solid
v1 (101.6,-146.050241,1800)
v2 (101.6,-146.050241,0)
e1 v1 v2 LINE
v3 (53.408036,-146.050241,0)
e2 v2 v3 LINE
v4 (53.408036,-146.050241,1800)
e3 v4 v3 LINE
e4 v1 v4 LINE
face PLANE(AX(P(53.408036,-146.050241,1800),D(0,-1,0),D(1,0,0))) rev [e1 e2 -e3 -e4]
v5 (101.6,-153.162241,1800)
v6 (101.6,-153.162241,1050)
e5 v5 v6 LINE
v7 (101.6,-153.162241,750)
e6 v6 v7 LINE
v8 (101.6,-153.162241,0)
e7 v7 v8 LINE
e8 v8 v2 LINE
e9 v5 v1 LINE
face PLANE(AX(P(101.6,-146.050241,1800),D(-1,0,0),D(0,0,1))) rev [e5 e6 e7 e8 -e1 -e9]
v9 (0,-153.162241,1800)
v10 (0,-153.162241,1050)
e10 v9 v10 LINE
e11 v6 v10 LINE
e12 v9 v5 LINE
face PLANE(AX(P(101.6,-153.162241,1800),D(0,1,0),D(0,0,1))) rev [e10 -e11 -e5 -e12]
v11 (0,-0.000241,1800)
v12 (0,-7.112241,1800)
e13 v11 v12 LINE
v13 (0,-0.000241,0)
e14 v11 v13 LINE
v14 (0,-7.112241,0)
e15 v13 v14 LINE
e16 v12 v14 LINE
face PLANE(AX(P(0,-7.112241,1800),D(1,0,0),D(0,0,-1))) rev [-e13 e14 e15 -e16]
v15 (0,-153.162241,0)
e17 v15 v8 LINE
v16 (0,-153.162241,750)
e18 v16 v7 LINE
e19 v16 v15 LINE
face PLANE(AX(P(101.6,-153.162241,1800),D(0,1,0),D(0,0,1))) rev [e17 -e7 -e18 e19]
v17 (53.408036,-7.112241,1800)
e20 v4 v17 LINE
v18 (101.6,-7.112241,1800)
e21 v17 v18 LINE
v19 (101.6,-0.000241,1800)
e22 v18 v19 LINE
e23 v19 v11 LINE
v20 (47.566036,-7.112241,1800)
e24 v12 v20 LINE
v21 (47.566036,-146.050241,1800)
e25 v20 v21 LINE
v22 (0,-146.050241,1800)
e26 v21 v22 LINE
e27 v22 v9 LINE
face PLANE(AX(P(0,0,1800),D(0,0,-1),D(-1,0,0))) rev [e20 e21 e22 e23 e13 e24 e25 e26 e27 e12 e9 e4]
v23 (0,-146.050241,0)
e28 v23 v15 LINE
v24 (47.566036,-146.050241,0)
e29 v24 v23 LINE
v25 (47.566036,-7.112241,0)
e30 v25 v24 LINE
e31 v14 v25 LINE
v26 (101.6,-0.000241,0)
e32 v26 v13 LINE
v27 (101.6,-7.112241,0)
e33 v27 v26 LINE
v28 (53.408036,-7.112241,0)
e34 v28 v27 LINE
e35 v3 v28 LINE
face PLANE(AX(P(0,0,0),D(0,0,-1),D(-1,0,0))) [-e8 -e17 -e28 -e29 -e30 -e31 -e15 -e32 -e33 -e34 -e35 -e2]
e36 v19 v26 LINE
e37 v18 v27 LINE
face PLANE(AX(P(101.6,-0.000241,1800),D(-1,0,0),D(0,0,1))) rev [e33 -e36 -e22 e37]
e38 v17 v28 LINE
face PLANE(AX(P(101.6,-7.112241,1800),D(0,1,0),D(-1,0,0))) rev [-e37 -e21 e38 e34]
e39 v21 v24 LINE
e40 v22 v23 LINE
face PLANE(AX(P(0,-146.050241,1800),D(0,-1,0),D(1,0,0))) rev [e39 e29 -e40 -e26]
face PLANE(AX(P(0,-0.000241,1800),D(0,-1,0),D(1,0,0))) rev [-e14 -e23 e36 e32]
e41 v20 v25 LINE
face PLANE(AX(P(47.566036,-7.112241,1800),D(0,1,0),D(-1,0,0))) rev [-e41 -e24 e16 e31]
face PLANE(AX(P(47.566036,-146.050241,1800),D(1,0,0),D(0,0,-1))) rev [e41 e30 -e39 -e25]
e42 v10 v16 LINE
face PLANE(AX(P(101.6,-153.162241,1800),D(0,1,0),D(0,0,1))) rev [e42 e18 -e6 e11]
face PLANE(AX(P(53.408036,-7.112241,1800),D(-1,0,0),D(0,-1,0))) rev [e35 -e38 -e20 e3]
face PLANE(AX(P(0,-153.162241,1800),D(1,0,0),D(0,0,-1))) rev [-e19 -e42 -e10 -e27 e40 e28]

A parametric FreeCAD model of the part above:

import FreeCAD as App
import Part
import Sketcher
Q = App.Units.Quantity

doc = App.newDocument("Part")
params = doc.addObject("Spreadsheet::Sheet", "Params")
for row, (alias, value) in enumerate([
    ("sketch1_width", "4 in"),
    ("sketch1_height", "0.28 in"),
    ("sketch1_height2", "5.47 in"),
    ("pad1_length", "1800 mm"),
], start=1):
    params.set(f"A{row}", alias)
    params.set(f"B{row}", "=" + value)
    params.setAlias(f"B{row}", alias)

body = doc.addObject("PartDesign::Body", "Body")

sketch1 = doc.addObject("Sketcher::SketchObject", "Sketch")
body.addObject(sketch1)
sketch1.AttachmentSupport = (doc.XY_Plane, [""])
sketch1.MapMode = "FlatFace"
sketch1.addGeometry([
    Part.LineSegment(App.Vector(102, 0, 0), App.Vector(0, 0, 0)),
    Part.LineSegment(App.Vector(0, 0, 0), App.Vector(0, -7, 0)),
    Part.LineSegment(App.Vector(0, -7, 0), App.Vector(48, -7, 0)),
    Part.LineSegment(App.Vector(48, -7, 0), App.Vector(48, -146, 0)),
    Part.LineSegment(App.Vector(48, -146, 0), App.Vector(0, -146, 0)),
    Part.LineSegment(App.Vector(0, -146, 0), App.Vector(0, -153, 0)),
    Part.LineSegment(App.Vector(0, -153, 0), App.Vector(102, -153, 0)),
    Part.LineSegment(App.Vector(102, -153, 0), App.Vector(102, -146, 0)),
    Part.LineSegment(App.Vector(102, -146, 0), App.Vector(53, -146, 0)),
    Part.LineSegment(App.Vector(53, -146, 0), App.Vector(53, -7, 0)),
    Part.LineSegment(App.Vector(53, -7, 0), App.Vector(102, -7, 0)),
    Part.LineSegment(App.Vector(102, -7, 0), App.Vector(102, 0, 0)),
], False)
sketch1.addConstraint([
    Sketcher.Constraint("Coincident", 0, 2, 1, 1),
    Sketcher.Constraint("Coincident", 1, 2, 2, 1),
    Sketcher.Constraint("Coincident", 2, 2, 3, 1),
    Sketcher.Constraint("Coincident", 3, 2, 4, 1),
    Sketcher.Constraint("Coincident", 4, 2, 5, 1),
    Sketcher.Constraint("Coincident", 5, 2, 6, 1),
    Sketcher.Constraint("Coincident", 6, 2, 7, 1),
    Sketcher.Constraint("Coincident", 7, 2, 8, 1),
    Sketcher.Constraint("Coincident", 8, 2, 9, 1),
    Sketcher.Constraint("Coincident", 9, 2, 10, 1),
    Sketcher.Constraint("Coincident", 10, 2, 11, 1),
    Sketcher.Constraint("Coincident", 11, 2, 0, 1),
    Sketcher.Constraint("Horizontal", 0),
    Sketcher.Constraint("Vertical", 1),
    Sketcher.Constraint("Horizontal", 2),
    Sketcher.Constraint("Vertical", 3),
    Sketcher.Constraint("Horizontal", 4),
    Sketcher.Constraint("Vertical", 5),
    Sketcher.Constraint("Horizontal", 6),
    Sketcher.Constraint("Vertical", 7),
    Sketcher.Constraint("Horizontal", 8),
    Sketcher.Constraint("Vertical", 9),
    Sketcher.Constraint("Horizontal", 10),
    Sketcher.Constraint("Vertical", 11),
    Sketcher.Constraint("PointOnObject", 0, 2, -2),
    Sketcher.Constraint("PointOnObject", 4, 2, -2),
    Sketcher.Constraint("Horizontal", 4, 2, 7, 2),
    Sketcher.Constraint("Horizontal", 2, 2, 9, 2),
    Sketcher.Constraint("Vertical", 7, 2, 10, 2),
    Sketcher.Constraint("Equal", 1, 5),
    Sketcher.Constraint("DistanceX", 0, 2, 0, 1, Q("4 in")),
    Sketcher.Constraint("DistanceY", 1, 2, 1, 1, Q("0.28 in")),
    Sketcher.Constraint("DistanceY", 3, 2, 3, 1, Q("5.47 in")),
    Sketcher.Constraint("DistanceX", 3, 2, 8, 2, Q("0.23 in")),
    Sketcher.Constraint("DistanceX", 2, 1, 2, 2, Q("47.566036 mm")),
    Sketcher.Constraint("DistanceY", 0, 2, -1, 1, Q("0.000241 mm")),
])
sketch1.setExpression("Constraints[30]", "Params.sketch1_width")
sketch1.setExpression("Constraints[31]", "Params.sketch1_height")
sketch1.setExpression("Constraints[32]", "Params.sketch1_height2")
pad1 = doc.addObject("PartDesign::Pad", "Pad")
body.addObject(pad1)
pad1.Profile = sketch1
pad1.setExpression("Length", "Params.pad1_length")

doc.recompute()
